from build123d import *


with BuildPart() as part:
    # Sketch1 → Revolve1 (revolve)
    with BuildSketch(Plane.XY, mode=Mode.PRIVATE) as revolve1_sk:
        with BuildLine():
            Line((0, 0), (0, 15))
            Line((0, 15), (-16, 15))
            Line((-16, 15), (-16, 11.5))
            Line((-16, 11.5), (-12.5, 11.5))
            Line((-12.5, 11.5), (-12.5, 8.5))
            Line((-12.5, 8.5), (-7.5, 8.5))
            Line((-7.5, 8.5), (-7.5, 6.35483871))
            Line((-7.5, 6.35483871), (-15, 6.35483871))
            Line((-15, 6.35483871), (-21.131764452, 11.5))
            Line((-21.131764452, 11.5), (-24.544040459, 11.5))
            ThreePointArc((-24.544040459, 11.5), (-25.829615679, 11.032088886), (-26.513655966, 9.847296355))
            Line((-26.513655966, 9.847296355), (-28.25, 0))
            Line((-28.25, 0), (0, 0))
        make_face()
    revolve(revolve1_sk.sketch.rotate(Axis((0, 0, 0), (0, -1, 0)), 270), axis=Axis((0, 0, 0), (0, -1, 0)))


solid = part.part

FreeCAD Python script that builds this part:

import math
import FreeCAD as App
import Part
import Sketcher
from FreeCAD import Vector
Q = App.Units.Quantity

doc = App.newDocument("Part")
params = doc.addObject("Spreadsheet::Sheet", "Params")
for row, (alias, value) in enumerate([
    ("sketch1_radius", "2 mm"),
    ("sketch1_width", "16 mm"),
    ("sketch1_width2", "5 mm"),
    ("sketch1_height", "15 mm"),
    ("sketch1_height2", "3 mm"),
    ("revolution_angle", "360 deg"),
], start=1):
    params.set(f"A{row}", alias)
    params.set(f"B{row}", "=" + value)
    params.setAlias(f"B{row}", alias)

body = doc.addObject("PartDesign::Body", "Body")

# Sketch on XY plane
sketch1 = body.newObject("Sketcher::SketchObject", "Sketch")
sketch1.AttachmentSupport = (doc.getObject("XY_Plane"), [""])
sketch1.MapMode = "FlatFace"
sketch1.addGeometry([
    Part.LineSegment(Vector(0, 0, 0), Vector(0, 15, 0)),  # 0
    Part.LineSegment(Vector(0, 15, 0), Vector(-16, 15, 0)),  # 1
    Part.LineSegment(Vector(-16, 15, 0), Vector(-16, 11.5, 0)),  # 2
    Part.LineSegment(Vector(-16, 11.5, 0), Vector(-12.5, 11.5, 0)),  # 3
    Part.LineSegment(Vector(-12.5, 11.5, 0), Vector(-12.5, 8.5, 0)),  # 4
    Part.LineSegment(Vector(-12.5, 8.5, 0), Vector(-7.5, 8.5, 0)),  # 5
    Part.LineSegment(Vector(-7.5, 8.5, 0), Vector(-7.5, 6.354839, 0)),  # 6
    Part.LineSegment(Vector(-7.5, 6.354839, 0), Vector(-15, 6.354839, 0)),  # 7
    Part.LineSegment(Vector(-15, 6.354839, 0), Vector(-21.131764, 11.5, 0)),  # 8
    Part.LineSegment(Vector(-21.131764, 11.5, 0), Vector(-24.54404, 11.5, 0)),  # 9
    Part.ArcOfCircle(Part.Circle(Vector(-24.54404, 9.5, 0), Vector(0, 0, 1), 2), math.radians(90), math.radians(170)),  # 10
    Part.LineSegment(Vector(-26.513656, 9.847296, 0), Vector(-28.25, 0, 0)),  # 11
    Part.LineSegment(Vector(-28.25, 0, 0), Vector(0, 0, 0)),  # 12
], False)
sketch1.addConstraint([
    Sketcher.Constraint("Coincident", 0, 2, 1, 1),
    Sketcher.Constraint("Coincident", 1, 2, 2, 1),
    Sketcher.Constraint("Coincident", 2, 2, 3, 1),
    Sketcher.Constraint("Coincident", 3, 2, 4, 1),
    Sketcher.Constraint("Coincident", 4, 2, 5, 1),
    Sketcher.Constraint("Coincident", 5, 2, 6, 1),
    Sketcher.Constraint("Coincident", 6, 2, 7, 1),
    Sketcher.Constraint("Coincident", 7, 2, 8, 1),
    Sketcher.Constraint("Coincident", 8, 2, 9, 1),
    Sketcher.Constraint("Tangent", 9, 2, 10, 1),
    Sketcher.Constraint("Tangent", 10, 2, 11, 1),
    Sketcher.Constraint("Coincident", 11, 2, 12, 1),
    Sketcher.Constraint("Coincident", 12, 2, 0, 1),
    Sketcher.Constraint("Vertical", 0),
    Sketcher.Constraint("Horizontal", 1),
    Sketcher.Constraint("Vertical", 2),
    Sketcher.Constraint("Horizontal", 3),
    Sketcher.Constraint("Vertical", 4),
    Sketcher.Constraint("Horizontal", 5),
    Sketcher.Constraint("Vertical", 6),
    Sketcher.Constraint("Horizontal", 7),
    Sketcher.Constraint("Horizontal", 9),
    Sketcher.Constraint("Horizontal", 12),
    Sketcher.Constraint("Coincident", 12, 2, -1, 1),
    Sketcher.Constraint("Horizontal", 3, 2, 8, 2),
    Sketcher.Constraint("Equal", 3, 2),
    Sketcher.Constraint("Radius", 10, Q("2 mm")),
    Sketcher.Constraint("DistanceX", 1, 2, 1, 1, Q("16 mm")),
    Sketcher.Constraint("DistanceX", 5, 1, 5, 2, Q("5 mm")),
    Sketcher.Constraint("DistanceY", 0, 1, 0, 2, Q("15 mm")),
    Sketcher.Constraint("DistanceY", 4, 2, 4, 1, Q("3 mm")),
    Sketcher.Constraint("Angle", 8, Q("140 deg")),
    Sketcher.Constraint("Angle", 11, Q("-100 deg")),
    Sketcher.Constraint("DistanceX", 3, 1, 3, 2, Q("3.5 mm")),
    Sketcher.Constraint("DistanceX", 7, 2, 7, 1, Q("7.5 mm")),
    Sketcher.Constraint("DistanceX", 12, 1, 12, 2, Q("28.25 mm")),
    Sketcher.Constraint("DistanceY", 6, 2, 6, 1, Q("2.145161 mm")),
])
sketch1.setExpression("Constraints[26]", "Params.sketch1_radius")
sketch1.setExpression("Constraints[27]", "Params.sketch1_width")
sketch1.setExpression("Constraints[28]", "Params.sketch1_width2")
sketch1.setExpression("Constraints[29]", "Params.sketch1_height")
sketch1.setExpression("Constraints[30]", "Params.sketch1_height2")
revolution = body.newObject("PartDesign::Revolution", "Revolution")
revolution.Profile = sketch1
revolution.ReferenceAxis = (sketch1, ["V_Axis"])
revolution.setExpression("Angle", "Params.revolution_angle")

doc.recompute()
